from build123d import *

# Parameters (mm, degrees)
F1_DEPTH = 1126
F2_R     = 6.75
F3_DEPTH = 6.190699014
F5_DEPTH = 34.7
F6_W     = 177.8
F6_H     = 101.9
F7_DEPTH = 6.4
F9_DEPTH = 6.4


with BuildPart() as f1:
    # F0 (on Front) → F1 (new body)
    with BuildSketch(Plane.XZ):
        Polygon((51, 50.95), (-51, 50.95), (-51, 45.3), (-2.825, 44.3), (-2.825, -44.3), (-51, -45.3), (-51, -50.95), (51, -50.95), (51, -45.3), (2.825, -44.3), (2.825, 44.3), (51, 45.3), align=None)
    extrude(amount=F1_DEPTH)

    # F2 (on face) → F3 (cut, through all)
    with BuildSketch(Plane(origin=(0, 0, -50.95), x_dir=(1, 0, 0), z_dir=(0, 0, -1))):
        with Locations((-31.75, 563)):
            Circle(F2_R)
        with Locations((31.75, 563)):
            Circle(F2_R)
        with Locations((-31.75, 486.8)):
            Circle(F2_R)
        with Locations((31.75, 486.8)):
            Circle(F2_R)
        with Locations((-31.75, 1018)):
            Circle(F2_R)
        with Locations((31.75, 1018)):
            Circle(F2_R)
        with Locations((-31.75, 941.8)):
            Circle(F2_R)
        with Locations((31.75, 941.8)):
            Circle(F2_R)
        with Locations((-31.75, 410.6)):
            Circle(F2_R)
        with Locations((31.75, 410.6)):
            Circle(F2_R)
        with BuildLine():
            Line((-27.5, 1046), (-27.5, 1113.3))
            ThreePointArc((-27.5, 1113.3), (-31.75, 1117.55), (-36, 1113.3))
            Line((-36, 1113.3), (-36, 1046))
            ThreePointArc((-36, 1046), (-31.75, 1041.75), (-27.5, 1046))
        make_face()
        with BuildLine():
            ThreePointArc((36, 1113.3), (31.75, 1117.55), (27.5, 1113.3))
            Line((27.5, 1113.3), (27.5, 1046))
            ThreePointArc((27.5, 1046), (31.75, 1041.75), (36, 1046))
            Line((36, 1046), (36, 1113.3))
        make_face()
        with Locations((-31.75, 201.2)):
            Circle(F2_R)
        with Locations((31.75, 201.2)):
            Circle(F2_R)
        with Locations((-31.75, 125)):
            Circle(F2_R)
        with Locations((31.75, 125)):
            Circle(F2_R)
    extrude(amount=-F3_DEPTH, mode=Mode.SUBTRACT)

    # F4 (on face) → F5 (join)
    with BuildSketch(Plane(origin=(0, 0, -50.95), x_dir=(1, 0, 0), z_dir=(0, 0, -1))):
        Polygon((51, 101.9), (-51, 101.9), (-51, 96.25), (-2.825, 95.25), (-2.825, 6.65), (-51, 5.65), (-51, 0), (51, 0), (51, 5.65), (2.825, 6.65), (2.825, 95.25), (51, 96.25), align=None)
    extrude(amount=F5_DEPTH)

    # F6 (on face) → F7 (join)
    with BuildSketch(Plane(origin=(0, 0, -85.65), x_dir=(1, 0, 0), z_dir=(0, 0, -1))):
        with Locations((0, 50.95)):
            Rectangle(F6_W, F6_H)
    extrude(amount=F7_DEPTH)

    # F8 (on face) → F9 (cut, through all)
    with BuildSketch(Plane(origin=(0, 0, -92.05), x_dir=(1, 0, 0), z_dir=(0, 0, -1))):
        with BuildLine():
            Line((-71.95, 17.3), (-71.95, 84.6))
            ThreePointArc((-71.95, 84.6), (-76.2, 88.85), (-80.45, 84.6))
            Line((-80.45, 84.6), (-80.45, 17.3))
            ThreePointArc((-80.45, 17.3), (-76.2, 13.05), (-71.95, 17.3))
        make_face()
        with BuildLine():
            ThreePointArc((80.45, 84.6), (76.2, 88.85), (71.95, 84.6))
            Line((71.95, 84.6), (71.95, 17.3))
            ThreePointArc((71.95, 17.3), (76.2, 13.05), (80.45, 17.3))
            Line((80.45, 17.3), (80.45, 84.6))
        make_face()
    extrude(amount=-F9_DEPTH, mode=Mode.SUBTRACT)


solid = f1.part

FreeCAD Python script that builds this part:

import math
import FreeCAD as App
import Part
import Sketcher
Q = App.Units.Quantity


def add_polygon(sketch, points):
    """Adds a closed chain of lines whose ends are joined by coincident constraints."""
    first, n = sketch.GeometryCount, len(points)
    for a, b in zip(points, points[1:] + points[:1]):
        sketch.addGeometry(Part.LineSegment(App.Vector(*a, 0), App.Vector(*b, 0)), False)
    for i in range(n):
        sketch.addConstraint(Sketcher.Constraint("Coincident", first + i, 2, first + (i + 1) % n, 1))

doc = App.newDocument("Part")
body = doc.addObject("PartDesign::Body", "Body")

# Sketch on XZ plane
sketch1 = body.newObject("Sketcher::SketchObject", "Sketch")
sketch1.AttachmentSupport = (doc.getObject("XZ_Plane"), [""])
sketch1.MapMode = "FlatFace"
add_polygon(sketch1, [(51, 51), (-51, 51), (-51, 45), (-3, 44), (-3, -44), (-51, -45), (-51, -51), (51, -51), (51, -45), (3, -44), (3, 44), (51, 45)])  # lines 0-11
sketch1.addConstraint([
    Sketcher.Constraint("Horizontal", 0),
    Sketcher.Constraint("Vertical", 1),
    Sketcher.Constraint("Vertical", 3),
    Sketcher.Constraint("Vertical", 5),
    Sketcher.Constraint("Horizontal", 6),
    Sketcher.Constraint("Vertical", 7),
    Sketcher.Constraint("Vertical", 9),
    Sketcher.Constraint("Vertical", 11),
    Sketcher.Constraint("Symmetric", 0, 2, 6, 2, -1, 1),
    Sketcher.Constraint("Symmetric", 2, 2, 8, 2, -1, 1),
    Sketcher.Constraint("Symmetric", 4, 2, 10, 2, -1, 1),
    Sketcher.Constraint("Symmetric", 4, 2, 7, 2, -2),
    Sketcher.Constraint("Parallel", 2, 8),
    Sketcher.Constraint("Parallel", 4, 10),
    Sketcher.Constraint("Horizontal", 3, 2, 8, 2),
    Sketcher.Constraint("DistanceX", 0, 2, 0, 1, Q("102 mm")),
    Sketcher.Constraint("DistanceY", 3, 2, 3, 1, Q("88.6 mm")),
    Sketcher.Constraint("DistanceY", 2, 2, 1, 2, Q("1 mm")),
    Sketcher.Constraint("DistanceY", 1, 2, 1, 1, Q("5.65 mm")),
    Sketcher.Constraint("DistanceX", 3, 2, 8, 2, Q("5.65 mm")),
])
pad1 = body.newObject("PartDesign::Pad", "Pad")
pad1.Profile = sketch1
pad1.Length = 1126

# Sketch on XY plane
sketch2 = body.newObject("Sketcher::SketchObject", "Sketch001")
sketch2.AttachmentSupport = (doc.getObject("XY_Plane"), [""])
sketch2.MapMode = "FlatFace"
sketch2.AttachmentOffset = App.Placement(App.Vector(0, 0, -50.95), App.Rotation())
sketch2.addGeometry([
    Part.Circle(App.Vector(-31.8, -563, 0), App.Vector(0, 0, 1), 6.8),  # 0
    Part.Circle(App.Vector(31.8, -563, 0), App.Vector(0, 0, 1), 6.8),  # 1
    Part.Circle(App.Vector(-31.8, -486.8, 0), App.Vector(0, 0, 1), 6.8),  # 2
    Part.Circle(App.Vector(31.8, -486.8, 0), App.Vector(0, 0, 1), 6.8),  # 3
    Part.Circle(App.Vector(-31.8, -1018, 0), App.Vector(0, 0, 1), 6.8),  # 4
    Part.Circle(App.Vector(31.8, -1018, 0), App.Vector(0, 0, 1), 6.8),  # 5
    Part.Circle(App.Vector(-31.8, -941.8, 0), App.Vector(0, 0, 1), 6.8),  # 6
    Part.Circle(App.Vector(31.8, -941.8, 0), App.Vector(0, 0, 1), 6.8),  # 7
    Part.Circle(App.Vector(-31.8, -410.6, 0), App.Vector(0, 0, 1), 6.8),  # 8
    Part.Circle(App.Vector(31.8, -410.6, 0), App.Vector(0, 0, 1), 6.8),  # 9
    Part.LineSegment(App.Vector(-27.5, -1046, 0), App.Vector(-27.5, -1113.3, 0)),  # 10
    Part.ArcOfCircle(Part.Circle(App.Vector(-31.8, -1113.3, 0), App.Vector(0, 0, 1), 4.2), math.radians(180), math.radians(360)),  # 11
    Part.LineSegment(App.Vector(-36, -1113.3, 0), App.Vector(-36, -1046, 0)),  # 12
    Part.ArcOfCircle(Part.Circle(App.Vector(-31.8, -1046, 0), App.Vector(0, 0, 1), 4.2), math.radians(0), math.radians(180)),  # 13
    Part.ArcOfCircle(Part.Circle(App.Vector(31.8, -1113.3, 0), App.Vector(0, 0, 1), 4.2), math.radians(180), math.radians(360)),  # 14
    Part.LineSegment(App.Vector(27.5, -1113.3, 0), App.Vector(27.5, -1046, 0)),  # 15
    Part.ArcOfCircle(Part.Circle(App.Vector(31.8, -1046, 0), App.Vector(0, 0, 1), 4.2), math.radians(0), math.radians(180)),  # 16
    Part.LineSegment(App.Vector(36, -1046, 0), App.Vector(36, -1113.3, 0)),  # 17
    Part.Circle(App.Vector(-31.8, -201.2, 0), App.Vector(0, 0, 1), 6.8),  # 18
    Part.Circle(App.Vector(31.8, -201.2, 0), App.Vector(0, 0, 1), 6.8),  # 19
    Part.Circle(App.Vector(-31.8, -125, 0), App.Vector(0, 0, 1), 6.8),  # 20
    Part.Circle(App.Vector(31.8, -125, 0), App.Vector(0, 0, 1), 6.8),  # 21
], False)
sketch2.addConstraint([
    Sketcher.Constraint("Tangent", 10, 2, 11, 2),
    Sketcher.Constraint("Tangent", 11, 1, 12, 1),
    Sketcher.Constraint("Tangent", 12, 2, 13, 2),
    Sketcher.Constraint("Tangent", 13, 1, 10, 1),
    Sketcher.Constraint("Tangent", 14, 1, 15, 1),
    Sketcher.Constraint("Tangent", 15, 2, 16, 2),
    Sketcher.Constraint("Tangent", 16, 1, 17, 1),
    Sketcher.Constraint("Tangent", 17, 2, 14, 2),
    Sketcher.Constraint("Vertical", 10),
    Sketcher.Constraint("Vertical", 12),
    Sketcher.Constraint("Vertical", 15),
    Sketcher.Constraint("Vertical", 17),
    Sketcher.Constraint("Equal", 0, 1),
    Sketcher.Constraint("Equal", 1, 2),
    Sketcher.Constraint("Equal", 2, 3),
    Sketcher.Constraint("Equal", 3, 4),
    Sketcher.Constraint("Equal", 4, 5),
    Sketcher.Constraint("Equal", 5, 6),
    Sketcher.Constraint("Equal", 6, 7),
    Sketcher.Constraint("Equal", 7, 8),
    Sketcher.Constraint("Equal", 8, 9),
    Sketcher.Constraint("Equal", 13, 14),
    Sketcher.Constraint("Equal", 9, 18),
    Sketcher.Constraint("Equal", 18, 19),
    Sketcher.Constraint("Equal", 19, 20),
    Sketcher.Constraint("Equal", 20, 21),
    Sketcher.Constraint("Symmetric", 0, 3, 1, 3, -2),
    Sketcher.Constraint("Symmetric", 2, 3, 3, 3, -2),
    Sketcher.Constraint("Symmetric", 4, 3, 5, 3, -2),
    Sketcher.Constraint("Symmetric", 6, 3, 7, 3, -2),
    Sketcher.Constraint("Symmetric", 8, 3, 9, 3, -2),
    Sketcher.Constraint("Symmetric", 11, 3, 14, 3, -2),
    Sketcher.Constraint("Symmetric", 18, 3, 19, 3, -2),
    Sketcher.Constraint("Symmetric", 20, 3, 21, 3, -2),
    Sketcher.Constraint("Horizontal", 13, 3, 16, 3),
    Sketcher.Constraint("Vertical", 0, 3, 2, 3),
    Sketcher.Constraint("Vertical", 2, 3, 4, 3),
    Sketcher.Constraint("Vertical", 4, 3, 6, 3),
    Sketcher.Constraint("Vertical", 6, 3, 8, 3),
    Sketcher.Constraint("Vertical", 8, 3, 11, 3),
    Sketcher.Constraint("Vertical", 13, 3, 18, 3),
    Sketcher.Constraint("Vertical", 18, 3, 20, 3),
    Sketcher.Constraint("Diameter", 0, Q("13.5 mm")),
    Sketcher.Constraint("Radius", 11, Q("4.25 mm")),
    Sketcher.Constraint("DistanceY", 10, 2, 10, 1, Q("67.3 mm")),
    Sketcher.Constraint("DistanceY", 0, 3, -1, 1, Q("563 mm")),
    Sketcher.Constraint("DistanceY", 4, 3, -1, 1, Q("1018 mm")),
    Sketcher.Constraint("DistanceY", 13, 3, -1, 1, Q("1046 mm")),
    Sketcher.Constraint("DistanceY", 20, 3, -1, 1, Q("125 mm")),
    Sketcher.Constraint("DistanceX", 11, 1, -1, 1, Q("36 mm")),
    Sketcher.Constraint("DistanceY", 6, 3, 2, 3, Q("455 mm")),
    Sketcher.Constraint("DistanceY", 2, 3, -1, 1, Q("486.8 mm")),
    Sketcher.Constraint("DistanceY", 8, 3, -1, 1, Q("410.6 mm")),
    Sketcher.Constraint("DistanceY", 18, 3, -1, 1, Q("201.2 mm")),
])
pocket1 = body.newObject("PartDesign::Pocket", "Pocket")
pocket1.Profile = sketch2
pocket1.Length = 6.190699
pocket1.Reversed = True

# Sketch on XY plane
sketch3 = body.newObject("Sketcher::SketchObject", "Sketch002")
sketch3.AttachmentSupport = (doc.getObject("XY_Plane"), [""])
sketch3.MapMode = "FlatFace"
sketch3.AttachmentOffset = App.Placement(App.Vector(0, 0, -50.95), App.Rotation())
add_polygon(sketch3, [(51, -102), (-51, -102), (-51, -96), (-3, -95), (-3, -7), (-51, -6), (-51, 0), (51, 0), (51, -6), (3, -7), (3, -95), (51, -96)])  # lines 0-11
sketch3.addConstraint([
    Sketcher.Constraint("Horizontal", 0),
    Sketcher.Constraint("Vertical", 1),
    Sketcher.Constraint("Vertical", 3),
    Sketcher.Constraint("Vertical", 5),
    Sketcher.Constraint("Horizontal", 6),
    Sketcher.Constraint("Vertical", 7),
    Sketcher.Constraint("Vertical", 9),
    Sketcher.Constraint("Vertical", 11),
    Sketcher.Constraint("Symmetric", 5, 2, 6, 2, -1, 1),
    Sketcher.Constraint("Symmetric", 3, 2, 8, 2, -2),
    Sketcher.Constraint("Symmetric", 1, 2, 10, 2, -2),
    Sketcher.Constraint("Parallel", 2, 8),
    Sketcher.Constraint("Parallel", 4, 10),
    Sketcher.Constraint("Horizontal", 4, 2, 7, 2),
    Sketcher.Constraint("Vertical", 1, 2, 4, 2),
    Sketcher.Constraint("Equal", 1, 5),
    Sketcher.Constraint("DistanceX", 0, 2, 0, 1, Q("102 mm")),
    Sketcher.Constraint("DistanceY", 3, 1, 3, 2, Q("88.6 mm")),
    Sketcher.Constraint("DistanceY", 1, 2, 2, 2, Q("1 mm")),
    Sketcher.Constraint("DistanceY", 1, 1, 1, 2, Q("5.65 mm")),
    Sketcher.Constraint("DistanceX", 3, 2, 8, 2, Q("5.65 mm")),
])
pad2 = body.newObject("PartDesign::Pad", "Pad001")
pad2.Profile = sketch3
pad2.Length = 34.7
pad2.Reversed = True

# Sketch on XY plane
sketch4 = body.newObject("Sketcher::SketchObject", "Sketch003")
sketch4.AttachmentSupport = (doc.getObject("XY_Plane"), [""])
sketch4.MapMode = "FlatFace"
sketch4.AttachmentOffset = App.Placement(App.Vector(0, 0, -85.65), App.Rotation())
add_polygon(sketch4, [(-89, -102), (-89, 0), (89, 0), (89, -102)])  # lines 0-3
sketch4.addConstraint([
    Sketcher.Constraint("Vertical", 0),
    Sketcher.Constraint("Horizontal", 1),
    Sketcher.Constraint("Vertical", 2),
    Sketcher.Constraint("Horizontal", 3),
    Sketcher.Constraint("Symmetric", 0, 2, 1, 2, -1, 1),
    Sketcher.Constraint("DistanceX", 1, 1, 1, 2, Q("177.8 mm")),
    Sketcher.Constraint("DistanceY", 0, 1, 0, 2, Q("101.9 mm")),
])
pad3 = body.newObject("PartDesign::Pad", "Pad002")
pad3.Profile = sketch4
pad3.Length = 6.4
pad3.Reversed = True

# Sketch on XY plane
sketch5 = body.newObject("Sketcher::SketchObject", "Sketch004")
sketch5.AttachmentSupport = (doc.getObject("XY_Plane"), [""])
sketch5.MapMode = "FlatFace"
sketch5.AttachmentOffset = App.Placement(App.Vector(0, 0, -92.05), App.Rotation())
sketch5.addGeometry([
    Part.LineSegment(App.Vector(-72, -17.3, 0), App.Vector(-72, -84.6, 0)),  # 0
    Part.ArcOfCircle(Part.Circle(App.Vector(-76.2, -84.6, 0), App.Vector(0, 0, 1), 4.2), math.radians(180), math.radians(360)),  # 1
    Part.LineSegment(App.Vector(-80.5, -84.6, 0), App.Vector(-80.5, -17.3, 0)),  # 2
    Part.ArcOfCircle(Part.Circle(App.Vector(-76.2, -17.3, 0), App.Vector(0, 0, 1), 4.2), math.radians(0), math.radians(180)),  # 3
    Part.ArcOfCircle(Part.Circle(App.Vector(76.2, -84.6, 0), App.Vector(0, 0, 1), 4.2), math.radians(180), math.radians(360)),  # 4
    Part.LineSegment(App.Vector(72, -84.6, 0), App.Vector(72, -17.3, 0)),  # 5
    Part.ArcOfCircle(Part.Circle(App.Vector(76.2, -17.3, 0), App.Vector(0, 0, 1), 4.2), math.radians(0), math.radians(180)),  # 6
    Part.LineSegment(App.Vector(80.5, -17.3, 0), App.Vector(80.5, -84.6, 0)),  # 7
], False)
sketch5.addConstraint([
    Sketcher.Constraint("Tangent", 0, 2, 1, 2),
    Sketcher.Constraint("Tangent", 1, 1, 2, 1),
    Sketcher.Constraint("Tangent", 2, 2, 3, 2),
    Sketcher.Constraint("Tangent", 3, 1, 0, 1),
    Sketcher.Constraint("Tangent", 4, 1, 5, 1),
    Sketcher.Constraint("Tangent", 5, 2, 6, 2),
    Sketcher.Constraint("Tangent", 6, 1, 7, 1),
    Sketcher.Constraint("Tangent", 7, 2, 4, 2),
    Sketcher.Constraint("Vertical", 0),
    Sketcher.Constraint("Vertical", 2),
    Sketcher.Constraint("Vertical", 5),
    Sketcher.Constraint("Vertical", 7),
    Sketcher.Constraint("Equal", 3, 4),
    Sketcher.Constraint("Symmetric", 1, 3, 4, 3, -2),
    Sketcher.Constraint("Horizontal", 3, 3, 6, 3),
    Sketcher.Constraint("Radius", 1, Q("4.25 mm")),
    Sketcher.Constraint("DistanceY", 0, 2, 0, 1, Q("67.3 mm")),
    Sketcher.Constraint("DistanceX", 1, 3, -1, 1, Q("76.2 mm")),
    Sketcher.Constraint("DistanceY", 1, 3, -1, 1, Q("84.6 mm")),
])
pocket2 = body.newObject("PartDesign::Pocket", "Pocket001")
pocket2.Profile = sketch5
pocket2.Type = "ThroughAll"
pocket2.Reversed = True

doc.recompute()
